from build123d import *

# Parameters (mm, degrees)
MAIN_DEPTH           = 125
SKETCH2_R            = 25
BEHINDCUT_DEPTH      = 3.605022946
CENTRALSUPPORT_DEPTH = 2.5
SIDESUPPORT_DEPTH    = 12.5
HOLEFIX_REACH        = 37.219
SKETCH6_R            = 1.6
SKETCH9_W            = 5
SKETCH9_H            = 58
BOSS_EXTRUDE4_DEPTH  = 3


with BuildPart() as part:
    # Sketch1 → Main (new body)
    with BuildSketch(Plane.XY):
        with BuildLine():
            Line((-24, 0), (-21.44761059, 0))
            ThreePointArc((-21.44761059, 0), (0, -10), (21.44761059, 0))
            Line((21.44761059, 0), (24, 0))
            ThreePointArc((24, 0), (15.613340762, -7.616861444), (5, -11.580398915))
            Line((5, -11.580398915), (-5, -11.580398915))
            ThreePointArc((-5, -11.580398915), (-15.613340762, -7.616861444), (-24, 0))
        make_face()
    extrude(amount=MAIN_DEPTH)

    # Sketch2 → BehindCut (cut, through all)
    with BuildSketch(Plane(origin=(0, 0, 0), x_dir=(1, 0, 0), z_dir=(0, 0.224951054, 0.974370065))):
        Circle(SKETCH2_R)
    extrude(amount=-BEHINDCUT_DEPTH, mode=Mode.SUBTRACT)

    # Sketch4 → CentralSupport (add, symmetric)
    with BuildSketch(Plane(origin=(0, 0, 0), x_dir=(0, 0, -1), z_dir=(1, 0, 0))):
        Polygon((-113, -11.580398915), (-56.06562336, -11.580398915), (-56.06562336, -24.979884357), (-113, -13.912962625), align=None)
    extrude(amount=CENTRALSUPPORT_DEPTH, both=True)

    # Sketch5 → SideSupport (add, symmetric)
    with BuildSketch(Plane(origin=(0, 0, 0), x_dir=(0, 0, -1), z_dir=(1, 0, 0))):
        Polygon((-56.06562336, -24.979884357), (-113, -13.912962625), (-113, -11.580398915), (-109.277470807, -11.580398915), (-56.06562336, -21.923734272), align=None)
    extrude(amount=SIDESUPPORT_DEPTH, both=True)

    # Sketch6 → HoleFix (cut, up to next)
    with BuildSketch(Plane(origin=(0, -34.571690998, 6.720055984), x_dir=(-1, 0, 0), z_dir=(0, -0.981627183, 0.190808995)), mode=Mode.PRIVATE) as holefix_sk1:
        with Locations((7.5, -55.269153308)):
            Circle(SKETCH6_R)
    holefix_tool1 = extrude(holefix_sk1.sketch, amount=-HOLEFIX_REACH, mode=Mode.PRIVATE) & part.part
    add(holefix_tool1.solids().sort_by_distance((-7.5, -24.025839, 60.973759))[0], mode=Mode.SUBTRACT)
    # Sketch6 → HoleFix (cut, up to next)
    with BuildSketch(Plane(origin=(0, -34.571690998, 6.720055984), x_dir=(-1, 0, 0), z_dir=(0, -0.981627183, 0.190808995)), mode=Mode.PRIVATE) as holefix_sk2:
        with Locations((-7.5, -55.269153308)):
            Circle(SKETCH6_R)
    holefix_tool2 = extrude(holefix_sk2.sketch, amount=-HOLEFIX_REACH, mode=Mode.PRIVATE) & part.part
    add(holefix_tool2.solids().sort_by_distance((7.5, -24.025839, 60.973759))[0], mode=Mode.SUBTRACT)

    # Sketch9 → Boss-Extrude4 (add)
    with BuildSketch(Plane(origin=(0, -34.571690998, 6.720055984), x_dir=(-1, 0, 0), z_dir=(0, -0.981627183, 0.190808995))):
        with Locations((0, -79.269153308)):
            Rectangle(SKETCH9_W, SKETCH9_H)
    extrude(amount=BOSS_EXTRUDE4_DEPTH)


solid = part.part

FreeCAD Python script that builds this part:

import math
import FreeCAD as App
import Part
import Sketcher
from FreeCAD import Vector
Q = App.Units.Quantity


def add_polygon(sketch, points):
    """Adds a closed chain of lines whose ends are joined by coincident constraints."""
    first, n = sketch.GeometryCount, len(points)
    for a, b in zip(points, points[1:] + points[:1]):
        sketch.addGeometry(Part.LineSegment(App.Vector(*a, 0), App.Vector(*b, 0)), False)
    for i in range(n):
        sketch.addConstraint(Sketcher.Constraint("Coincident", first + i, 2, first + (i + 1) % n, 1))

doc = App.newDocument("Part")
params = doc.addObject("Spreadsheet::Sheet", "Params")
for row, (alias, value) in enumerate([
    ("sketch1_radius", "30 mm"),
    ("sketch1_radius2", "28 mm"),
    ("sketch1_width", "10 mm"),
    ("pad1_length", "125 mm"),
    ("sketch2_diameter", "50 mm"),
    ("sketch3_length", "58 mm"),
    ("pad2_length", "5 mm"),
    ("sketch4_length", "58 mm"),
    ("pad3_length", "25 mm"),
    ("sketch5_diameter", "3.2 mm"),
    ("sketch6_diameter", "3.2 mm"),
    ("sketch7_width", "5 mm"),
    ("sketch7_height", "58 mm"),
    ("pad4_length", "3 mm"),
], start=1):
    params.set(f"A{row}", alias)
    params.set(f"B{row}", "=" + value)
    params.setAlias(f"B{row}", alias)

body = doc.addObject("PartDesign::Body", "Body")

# Sketch on XY plane
sketch1 = body.newObject("Sketcher::SketchObject", "Sketch")
sketch1.AttachmentSupport = (doc.getObject("XY_Plane"), [""])
sketch1.MapMode = "FlatFace"
sketch1.addGeometry([
    Part.LineSegment(Vector(-21.447611, 0, 0), Vector(-24, 0, 0)),  # 0
    Part.ArcOfCircle(Part.Circle(Vector(0, 18, 0), Vector(0, 0, 1), 30), math.radians(-143.130102), math.radians(-99.594068)),  # 1
    Part.LineSegment(Vector(-5, -11.580399, 0), Vector(5, -11.580399, 0)),  # 2
    Part.ArcOfCircle(Part.Circle(Vector(0, 18, 0), Vector(0, 0, 1), 30), math.radians(-80.405932), math.radians(-36.869898)),  # 3
    Part.LineSegment(Vector(24, 0, 0), Vector(21.447611, 0, 0)),  # 4
    Part.ArcOfCircle(Part.Circle(Vector(0, 18, 0), Vector(0, 0, 1), 28), math.radians(-139.994799), math.radians(-40.005201)),  # 5
], False)
sketch1.addConstraint([
    Sketcher.Constraint("Coincident", 0, 2, 1, 1),
    Sketcher.Constraint("Coincident", 1, 2, 2, 1),
    Sketcher.Constraint("Coincident", 2, 2, 3, 1),
    Sketcher.Constraint("Coincident", 3, 2, 4, 1),
    Sketcher.Constraint("Coincident", 4, 2, 5, 2),
    Sketcher.Constraint("Coincident", 5, 1, 0, 1),
    Sketcher.Constraint("Horizontal", 0),
    Sketcher.Constraint("Horizontal", 2),
    Sketcher.Constraint("Horizontal", 4),
    Sketcher.Constraint("Coincident", 3, 3, 1, 3),
    Sketcher.Constraint("Coincident", 5, 3, 1, 3),
    Sketcher.Constraint("Equal", 1, 3),
    Sketcher.Constraint("Symmetric", 0, 2, 3, 2, -1, 1),
    Sketcher.Constraint("PointOnObject", 1, 3, -2),
    Sketcher.Constraint("Radius", 1, Q("30 mm")),
    Sketcher.Constraint("Radius", 5, Q("28 mm")),
    Sketcher.Constraint("DistanceX", 2, 1, 2, 2, Q("10 mm")),
    Sketcher.Constraint("DistanceY", -1, 1, 1, 3, Q("18 mm")),
])
sketch1.setExpression("Constraints[14]", "Params.sketch1_radius")
sketch1.setExpression("Constraints[15]", "Params.sketch1_radius2")
sketch1.setExpression("Constraints[16]", "Params.sketch1_width")
pad1 = body.newObject("PartDesign::Pad", "Pad")
pad1.Profile = sketch1
pad1.setExpression("Length", "Params.pad1_length")

# Sketch on an angled plane
sketch2 = body.newObject("Sketcher::SketchObject", "Sketch001")
sketch2.Placement = App.Placement(Vector(0, 0, 0), App.Rotation(Vector(1, 0, 0), Vector(0, 0.974370065, -0.224951054), Vector(0, 0.224951054, 0.974370065), "ZXY"))
sketch2.addGeometry(Part.Circle(Vector(0, 0, 0), Vector(0, 0, 1), 25), False)
sketch2.addConstraint([
    Sketcher.Constraint("Coincident", 0, 3, -1, 1),
    Sketcher.Constraint("Diameter", 0, Q("50 mm")),
])
sketch2.setExpression("Constraints[1]", "Params.sketch2_diameter")
pocket1 = body.newObject("PartDesign::Pocket", "Pocket")
pocket1.Profile = sketch2
pocket1.Type = "ThroughAll"

# Sketch on YZ plane
sketch3 = body.newObject("Sketcher::SketchObject", "Sketch002")
sketch3.AttachmentSupport = (doc.getObject("YZ_Plane"), [""])
sketch3.MapMode = "FlatFace"
add_polygon(sketch3, [(-11.580399, 56.065623), (-11.580399, 113), (-13.912963, 113), (-24.979884, 56.065623)])  # lines 0-3
sketch3.addConstraint([
    Sketcher.Constraint("Vertical", 0),
    Sketcher.Constraint("Horizontal", 1),
    Sketcher.Constraint("Horizontal", 3),
    Sketcher.Constraint("Angle", 2, Q("-101 deg")),
    Sketcher.Constraint("Distance", 2, Q("58 mm")),
    Sketcher.Constraint("DistanceY", -1, 1, 0, 2, Q("113 mm")),
    Sketcher.Constraint("DistanceX", 0, 2, -1, 1, Q("11.580399 mm")),
    Sketcher.Constraint("DistanceX", 1, 2, 1, 1, Q("2.332564 mm")),
])
sketch3.setExpression("Constraints[8]", "Params.sketch3_length")
pad2 = body.newObject("PartDesign::Pad", "Pad001")
pad2.Profile = sketch3
pad2.setExpression("Length", "Params.pad2_length")
pad2.Midplane = True

# Sketch on YZ plane
sketch4 = body.newObject("Sketcher::SketchObject", "Sketch003")
sketch4.AttachmentSupport = (doc.getObject("YZ_Plane"), [""])
sketch4.MapMode = "FlatFace"
add_polygon(sketch4, [(-13.912963, 113), (-24.979884, 56.065623), (-21.923734, 56.065623), (-11.580399, 109.277471), (-11.580399, 113)])  # lines 0-4
sketch4.addConstraint([
    Sketcher.Constraint("Horizontal", 1),
    Sketcher.Constraint("Vertical", 3),
    Sketcher.Constraint("Horizontal", 4),
    Sketcher.Constraint("Parallel", 0, 2),
    Sketcher.Constraint("Angle", 0, Q("-101 deg")),
    Sketcher.Constraint("Distance", 0, Q("58 mm")),
    Sketcher.Constraint("DistanceY", -1, 1, 3, 2, Q("113 mm")),
    Sketcher.Constraint("DistanceX", 1, 1, 1, 2, Q("3.05615 mm")),
    Sketcher.Constraint("DistanceY", 3, 1, 3, 2, Q("3.722529 mm")),
    Sketcher.Constraint("DistanceX", 2, 2, -1, 1, Q("11.580399 mm")),
])
sketch4.setExpression("Constraints[10]", "Params.sketch4_length")
pad3 = body.newObject("PartDesign::Pad", "Pad002")
pad3.Profile = sketch4
pad3.setExpression("Length", "Params.pad3_length")
pad3.Midplane = True

# Sketch on an angled plane
sketch5 = body.newObject("Sketcher::SketchObject", "Sketch004")
sketch5.Placement = App.Placement(Vector(0, -34.571691, 6.720056), App.Rotation(Vector(-1, 0, 0), Vector(0, -0.190808995, -0.981627184), Vector(0, -0.981627184, 0.190808995), "ZXY"))
sketch5.addGeometry(Part.Circle(Vector(7.5, -55.269153, 0), Vector(0, 0, 1), 1.6), False)
sketch5.addConstraint([
    Sketcher.Constraint("Diameter", 0, Q("3.2 mm")),
    Sketcher.Constraint("DistanceX", -1, 1, 0, 3, Q("7.5 mm")),
    Sketcher.Constraint("DistanceY", 0, 3, -1, 1, Q("55.269153 mm")),
])
sketch5.setExpression("Constraints[0]", "Params.sketch5_diameter")
pocket2 = body.newObject("PartDesign::Pocket", "Pocket001")
pocket2.Profile = sketch5
pocket2.Type = "UpToFirst"

# Sketch on an angled plane
sketch6 = body.newObject("Sketcher::SketchObject", "Sketch005")
sketch6.Placement = App.Placement(Vector(0, -34.571691, 6.720056), App.Rotation(Vector(-1, 0, 0), Vector(0, -0.190808995, -0.981627184), Vector(0, -0.981627184, 0.190808995), "ZXY"))
sketch6.addGeometry(Part.Circle(Vector(-7.5, -55.269153, 0), Vector(0, 0, 1), 1.6), False)
sketch6.addConstraint([
    Sketcher.Constraint("Diameter", 0, Q("3.2 mm")),
    Sketcher.Constraint("DistanceX", 0, 3, -1, 1, Q("7.5 mm")),
    Sketcher.Constraint("DistanceY", 0, 3, -1, 1, Q("55.269153 mm")),
])
sketch6.setExpression("Constraints[0]", "Params.sketch6_diameter")
pocket3 = body.newObject("PartDesign::Pocket", "Pocket002")
pocket3.Profile = sketch6
pocket3.Type = "UpToFirst"

# Sketch on an angled plane
sketch7 = body.newObject("Sketcher::SketchObject", "Sketch006")
sketch7.Placement = App.Placement(Vector(0, -34.571691, 6.720056), App.Rotation(Vector(-1, 0, 0), Vector(0, -0.190808995, -0.981627184), Vector(0, -0.981627184, 0.190808995), "ZXY"))
add_polygon(sketch7, [(-2.5, -50.269153), (-2.5, -108.269153), (2.5, -108.269153), (2.5, -50.269153)])  # lines 0-3
sketch7.addConstraint([
    Sketcher.Constraint("Vertical", 0),
    Sketcher.Constraint("Horizontal", 1),
    Sketcher.Constraint("Vertical", 2),
    Sketcher.Constraint("Horizontal", 3),
    Sketcher.Constraint("DistanceX", 1, 1, 1, 2, Q("5 mm")),
    Sketcher.Constraint("DistanceY", 0, 2, 0, 1, Q("58 mm")),
    Sketcher.Constraint("DistanceX", 0, 2, -1, 1, Q("2.5 mm")),
    Sketcher.Constraint("DistanceY", 0, 2, -1, 1, Q("108.269153 mm")),
])
sketch7.setExpression("Constraints[8]", "Params.sketch7_width")
sketch7.setExpression("Constraints[9]", "Params.sketch7_height")
pad4 = body.newObject("PartDesign::Pad", "Pad003")
pad4.Profile = sketch7
pad4.setExpression("Length", "Params.pad4_length")

doc.recompute()
